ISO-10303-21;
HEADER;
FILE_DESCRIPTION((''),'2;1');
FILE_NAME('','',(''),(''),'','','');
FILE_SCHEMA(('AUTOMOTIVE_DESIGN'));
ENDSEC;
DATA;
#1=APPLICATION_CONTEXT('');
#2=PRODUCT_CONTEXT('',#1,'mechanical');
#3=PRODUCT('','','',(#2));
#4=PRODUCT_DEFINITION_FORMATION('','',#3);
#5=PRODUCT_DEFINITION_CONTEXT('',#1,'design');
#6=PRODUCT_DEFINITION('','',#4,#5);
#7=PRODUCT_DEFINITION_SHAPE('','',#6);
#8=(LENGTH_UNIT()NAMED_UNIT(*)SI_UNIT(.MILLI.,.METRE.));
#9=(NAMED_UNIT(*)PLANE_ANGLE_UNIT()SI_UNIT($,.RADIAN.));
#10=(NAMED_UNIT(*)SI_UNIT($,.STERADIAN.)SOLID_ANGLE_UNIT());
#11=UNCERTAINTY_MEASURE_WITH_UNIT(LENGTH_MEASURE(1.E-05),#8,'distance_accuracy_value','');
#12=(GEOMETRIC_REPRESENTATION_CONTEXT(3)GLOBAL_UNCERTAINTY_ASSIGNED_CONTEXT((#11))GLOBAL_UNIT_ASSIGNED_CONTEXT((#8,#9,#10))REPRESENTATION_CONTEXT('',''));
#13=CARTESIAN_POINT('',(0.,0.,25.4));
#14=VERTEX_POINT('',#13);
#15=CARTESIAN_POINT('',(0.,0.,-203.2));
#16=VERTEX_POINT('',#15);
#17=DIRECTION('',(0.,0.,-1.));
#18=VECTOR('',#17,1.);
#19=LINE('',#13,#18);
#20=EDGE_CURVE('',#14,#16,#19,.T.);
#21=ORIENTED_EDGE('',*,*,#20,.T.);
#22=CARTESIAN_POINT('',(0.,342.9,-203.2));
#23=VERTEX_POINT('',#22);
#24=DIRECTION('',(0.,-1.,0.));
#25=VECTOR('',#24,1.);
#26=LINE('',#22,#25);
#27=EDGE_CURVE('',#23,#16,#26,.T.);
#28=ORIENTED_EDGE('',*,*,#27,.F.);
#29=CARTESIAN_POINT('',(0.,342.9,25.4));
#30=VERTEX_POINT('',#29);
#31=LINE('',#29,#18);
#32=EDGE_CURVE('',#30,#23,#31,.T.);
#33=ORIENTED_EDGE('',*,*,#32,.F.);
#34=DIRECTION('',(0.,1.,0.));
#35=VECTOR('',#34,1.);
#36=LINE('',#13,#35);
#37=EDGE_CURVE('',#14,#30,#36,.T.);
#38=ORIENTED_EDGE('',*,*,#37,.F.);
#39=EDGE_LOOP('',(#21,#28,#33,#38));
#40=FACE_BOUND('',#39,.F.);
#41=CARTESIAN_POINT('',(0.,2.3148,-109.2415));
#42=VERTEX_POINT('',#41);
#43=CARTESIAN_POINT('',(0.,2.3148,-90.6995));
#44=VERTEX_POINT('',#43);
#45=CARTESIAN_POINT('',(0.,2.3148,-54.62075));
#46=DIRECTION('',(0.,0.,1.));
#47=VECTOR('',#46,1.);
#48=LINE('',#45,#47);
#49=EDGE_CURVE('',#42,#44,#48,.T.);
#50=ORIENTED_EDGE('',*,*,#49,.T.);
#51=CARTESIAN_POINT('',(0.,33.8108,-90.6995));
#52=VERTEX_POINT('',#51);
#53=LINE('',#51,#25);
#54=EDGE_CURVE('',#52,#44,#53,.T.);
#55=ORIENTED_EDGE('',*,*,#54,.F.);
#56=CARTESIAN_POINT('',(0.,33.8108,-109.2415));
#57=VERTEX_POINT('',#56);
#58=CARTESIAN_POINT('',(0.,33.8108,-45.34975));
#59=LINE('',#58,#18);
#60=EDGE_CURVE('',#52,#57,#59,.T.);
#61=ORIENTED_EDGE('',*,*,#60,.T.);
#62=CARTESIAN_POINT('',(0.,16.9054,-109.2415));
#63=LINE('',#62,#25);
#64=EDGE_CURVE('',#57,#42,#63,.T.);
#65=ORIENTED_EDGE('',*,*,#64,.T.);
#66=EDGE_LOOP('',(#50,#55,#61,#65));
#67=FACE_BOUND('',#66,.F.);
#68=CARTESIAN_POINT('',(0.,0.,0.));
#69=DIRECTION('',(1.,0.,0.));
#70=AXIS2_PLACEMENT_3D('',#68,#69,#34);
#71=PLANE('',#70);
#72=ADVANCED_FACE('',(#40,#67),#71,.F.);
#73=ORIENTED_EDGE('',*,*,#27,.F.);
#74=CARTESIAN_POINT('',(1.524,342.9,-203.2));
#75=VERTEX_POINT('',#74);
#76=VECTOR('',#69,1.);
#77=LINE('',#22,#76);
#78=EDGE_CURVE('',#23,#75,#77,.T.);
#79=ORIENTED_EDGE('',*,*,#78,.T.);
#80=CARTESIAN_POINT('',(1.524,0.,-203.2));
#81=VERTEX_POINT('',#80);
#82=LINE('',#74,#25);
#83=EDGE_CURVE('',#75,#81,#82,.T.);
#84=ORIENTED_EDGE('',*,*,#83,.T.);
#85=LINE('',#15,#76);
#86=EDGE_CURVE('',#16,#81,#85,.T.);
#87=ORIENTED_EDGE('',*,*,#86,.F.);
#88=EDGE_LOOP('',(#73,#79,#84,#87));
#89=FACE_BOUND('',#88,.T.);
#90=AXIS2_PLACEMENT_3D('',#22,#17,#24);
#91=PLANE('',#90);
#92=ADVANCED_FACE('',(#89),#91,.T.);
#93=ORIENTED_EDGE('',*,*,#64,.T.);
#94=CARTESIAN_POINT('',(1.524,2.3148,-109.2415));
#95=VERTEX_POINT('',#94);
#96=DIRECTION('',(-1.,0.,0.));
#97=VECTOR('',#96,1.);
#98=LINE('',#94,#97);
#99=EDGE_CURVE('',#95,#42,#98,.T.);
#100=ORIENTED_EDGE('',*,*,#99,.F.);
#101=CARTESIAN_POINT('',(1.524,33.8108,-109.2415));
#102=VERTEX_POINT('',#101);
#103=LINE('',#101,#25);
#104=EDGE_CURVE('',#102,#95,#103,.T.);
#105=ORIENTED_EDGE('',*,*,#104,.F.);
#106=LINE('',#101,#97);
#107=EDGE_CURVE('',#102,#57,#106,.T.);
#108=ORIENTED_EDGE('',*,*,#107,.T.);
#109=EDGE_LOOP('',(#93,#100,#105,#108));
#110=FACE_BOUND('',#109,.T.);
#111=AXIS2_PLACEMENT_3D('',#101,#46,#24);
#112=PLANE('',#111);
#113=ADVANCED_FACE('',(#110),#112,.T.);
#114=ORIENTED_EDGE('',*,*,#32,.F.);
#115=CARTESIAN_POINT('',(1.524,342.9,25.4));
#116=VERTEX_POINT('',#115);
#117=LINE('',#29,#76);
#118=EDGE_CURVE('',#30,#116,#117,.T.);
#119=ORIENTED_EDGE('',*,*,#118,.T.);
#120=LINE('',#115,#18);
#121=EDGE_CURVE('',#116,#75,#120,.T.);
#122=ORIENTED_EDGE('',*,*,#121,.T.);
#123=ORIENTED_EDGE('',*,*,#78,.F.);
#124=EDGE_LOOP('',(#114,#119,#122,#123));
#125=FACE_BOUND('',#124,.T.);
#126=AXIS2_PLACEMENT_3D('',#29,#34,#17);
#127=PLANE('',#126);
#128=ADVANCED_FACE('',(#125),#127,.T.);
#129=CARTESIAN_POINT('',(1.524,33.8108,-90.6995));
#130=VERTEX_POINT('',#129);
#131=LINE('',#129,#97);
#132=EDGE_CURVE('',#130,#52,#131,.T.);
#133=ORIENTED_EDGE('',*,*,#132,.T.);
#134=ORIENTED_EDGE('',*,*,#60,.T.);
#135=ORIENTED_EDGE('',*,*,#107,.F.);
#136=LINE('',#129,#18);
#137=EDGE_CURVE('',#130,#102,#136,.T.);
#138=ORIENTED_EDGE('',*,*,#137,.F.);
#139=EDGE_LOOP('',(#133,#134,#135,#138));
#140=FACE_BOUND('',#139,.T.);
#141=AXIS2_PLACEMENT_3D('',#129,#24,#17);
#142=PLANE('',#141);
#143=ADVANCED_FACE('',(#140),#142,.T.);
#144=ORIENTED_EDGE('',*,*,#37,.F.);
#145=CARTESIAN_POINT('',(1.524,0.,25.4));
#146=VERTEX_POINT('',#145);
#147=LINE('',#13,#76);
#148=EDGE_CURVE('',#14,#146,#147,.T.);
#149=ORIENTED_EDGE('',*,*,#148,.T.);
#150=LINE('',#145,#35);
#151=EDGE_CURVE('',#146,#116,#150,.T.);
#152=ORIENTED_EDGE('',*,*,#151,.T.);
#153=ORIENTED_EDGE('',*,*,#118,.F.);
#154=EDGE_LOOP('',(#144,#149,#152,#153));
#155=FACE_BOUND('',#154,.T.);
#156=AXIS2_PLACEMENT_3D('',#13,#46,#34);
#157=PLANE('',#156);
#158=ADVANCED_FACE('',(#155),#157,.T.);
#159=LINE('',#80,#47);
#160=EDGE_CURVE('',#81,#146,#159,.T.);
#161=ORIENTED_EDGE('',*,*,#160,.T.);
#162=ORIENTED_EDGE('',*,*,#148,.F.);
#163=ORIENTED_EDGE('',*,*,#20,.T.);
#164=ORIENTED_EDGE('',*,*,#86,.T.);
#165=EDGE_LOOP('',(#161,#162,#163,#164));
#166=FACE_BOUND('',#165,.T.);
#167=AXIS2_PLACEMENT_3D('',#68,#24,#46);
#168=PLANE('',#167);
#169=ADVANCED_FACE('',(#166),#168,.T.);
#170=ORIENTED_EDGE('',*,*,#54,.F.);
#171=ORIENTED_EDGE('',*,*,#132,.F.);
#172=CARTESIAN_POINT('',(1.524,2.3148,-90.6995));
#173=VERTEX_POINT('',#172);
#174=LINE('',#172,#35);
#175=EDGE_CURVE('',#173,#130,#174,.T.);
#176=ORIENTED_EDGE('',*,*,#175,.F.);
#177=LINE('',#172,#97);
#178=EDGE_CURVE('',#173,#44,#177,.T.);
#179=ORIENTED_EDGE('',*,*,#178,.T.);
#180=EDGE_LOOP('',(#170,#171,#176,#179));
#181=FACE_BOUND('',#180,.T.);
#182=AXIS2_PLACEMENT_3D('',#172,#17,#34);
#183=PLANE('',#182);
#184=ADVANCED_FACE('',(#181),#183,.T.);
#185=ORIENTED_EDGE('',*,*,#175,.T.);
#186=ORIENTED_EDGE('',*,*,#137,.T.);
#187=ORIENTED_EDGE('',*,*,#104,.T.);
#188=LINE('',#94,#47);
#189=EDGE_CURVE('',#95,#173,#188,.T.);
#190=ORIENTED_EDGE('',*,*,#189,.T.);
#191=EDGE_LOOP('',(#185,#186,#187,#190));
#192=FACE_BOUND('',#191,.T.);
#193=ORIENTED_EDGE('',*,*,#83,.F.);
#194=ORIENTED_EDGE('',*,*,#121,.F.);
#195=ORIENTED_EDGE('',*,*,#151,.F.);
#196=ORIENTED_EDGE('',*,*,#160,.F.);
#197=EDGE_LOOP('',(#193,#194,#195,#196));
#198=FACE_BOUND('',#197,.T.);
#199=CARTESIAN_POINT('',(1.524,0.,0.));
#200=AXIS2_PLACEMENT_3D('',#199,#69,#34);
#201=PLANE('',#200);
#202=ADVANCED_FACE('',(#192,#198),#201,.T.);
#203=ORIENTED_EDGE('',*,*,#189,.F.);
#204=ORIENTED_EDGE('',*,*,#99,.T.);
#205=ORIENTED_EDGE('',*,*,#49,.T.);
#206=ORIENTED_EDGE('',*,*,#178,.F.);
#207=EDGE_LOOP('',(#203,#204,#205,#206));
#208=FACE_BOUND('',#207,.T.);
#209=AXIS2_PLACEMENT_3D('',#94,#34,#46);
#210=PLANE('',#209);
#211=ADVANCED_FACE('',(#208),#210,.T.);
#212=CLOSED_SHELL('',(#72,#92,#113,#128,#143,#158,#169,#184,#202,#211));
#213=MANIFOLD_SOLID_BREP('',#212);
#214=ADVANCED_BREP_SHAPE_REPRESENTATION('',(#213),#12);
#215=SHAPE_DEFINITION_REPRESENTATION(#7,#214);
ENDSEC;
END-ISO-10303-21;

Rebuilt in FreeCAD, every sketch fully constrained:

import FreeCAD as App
import Part
import Sketcher
Q = App.Units.Quantity


def add_polygon(sketch, points):
    """Adds a closed chain of lines whose ends are joined by coincident constraints."""
    first, n = sketch.GeometryCount, len(points)
    for a, b in zip(points, points[1:] + points[:1]):
        sketch.addGeometry(Part.LineSegment(App.Vector(*a, 0), App.Vector(*b, 0)), False)
    for i in range(n):
        sketch.addConstraint(Sketcher.Constraint("Coincident", first + i, 2, first + (i + 1) % n, 1))

doc = App.newDocument("Part")
body = doc.addObject("PartDesign::Body", "Body")

# Sketch on YZ plane
sketch1 = doc.addObject("Sketcher::SketchObject", "Sketch")
body.addObject(sketch1)
sketch1.AttachmentSupport = (doc.YZ_Plane, [""])
sketch1.MapMode = "FlatFace"
add_polygon(sketch1, [(0, 25), (0, -203), (343, -203), (343, 25)])  # lines 0-3
sketch1.addConstraint([
    Sketcher.Constraint("Vertical", 0),
    Sketcher.Constraint("Horizontal", 1),
    Sketcher.Constraint("Vertical", 2),
    Sketcher.Constraint("Horizontal", 3),
    Sketcher.Constraint("PointOnObject", 0, 2, -2),
    Sketcher.Constraint("DistanceY", 0, 2, 0, 1, Q("9 in")),
    Sketcher.Constraint("DistanceX", 1, 1, 1, 2, Q("13.5 in")),
    Sketcher.Constraint("DistanceY", -1, 1, 2, 2, Q("1 in")),
])
pad1 = doc.addObject("PartDesign::Pad", "Pad")
body.addObject(pad1)
pad1.Profile = sketch1
pad1.Length = Q("0.06 in")

# Sketch on YZ plane
sketch2 = doc.addObject("Sketcher::SketchObject", "Sketch001")
body.addObject(sketch2)
sketch2.AttachmentSupport = (doc.YZ_Plane, [""])
sketch2.MapMode = "FlatFace"
sketch2.AttachmentOffset = App.Placement(App.Vector(0, 0, 0.06 * 25.4), App.Rotation())
add_polygon(sketch2, [(34, -91), (2, -91), (2, -109), (34, -109)])  # lines 0-3
sketch2.addConstraint([
    Sketcher.Constraint("Horizontal", 0),
    Sketcher.Constraint("Vertical", 1),
    Sketcher.Constraint("Horizontal", 2),
    Sketcher.Constraint("Vertical", 3),
    Sketcher.Constraint("DistanceX", 0, 2, 0, 1, Q("1.24 in")),
    Sketcher.Constraint("DistanceY", 1, 2, 1, 1, Q("0.73 in")),
    Sketcher.Constraint("DistanceX", -1, 1, 0, 2, 2.3148),
    Sketcher.Constraint("DistanceY", 0, 2, -1, 1, 90.6995),
])
pocket1 = doc.addObject("PartDesign::Pocket", "Pocket")
body.addObject(pocket1)
pocket1.Profile = sketch2
pocket1.Length = Q("1 in")

doc.recompute()
